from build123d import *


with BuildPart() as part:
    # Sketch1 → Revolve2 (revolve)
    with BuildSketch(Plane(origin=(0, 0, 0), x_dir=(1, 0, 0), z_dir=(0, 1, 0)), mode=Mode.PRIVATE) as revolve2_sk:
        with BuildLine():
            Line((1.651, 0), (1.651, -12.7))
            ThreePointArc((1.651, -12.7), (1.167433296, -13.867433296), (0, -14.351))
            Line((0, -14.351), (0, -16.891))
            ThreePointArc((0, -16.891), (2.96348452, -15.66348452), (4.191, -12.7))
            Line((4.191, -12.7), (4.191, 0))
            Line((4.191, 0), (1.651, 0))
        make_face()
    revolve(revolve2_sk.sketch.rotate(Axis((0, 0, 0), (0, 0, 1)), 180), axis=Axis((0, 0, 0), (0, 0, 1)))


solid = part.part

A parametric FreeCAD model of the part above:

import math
import FreeCAD as App
import Part
import Sketcher

V = App.Vector
Q = App.Units.Quantity

doc = App.newDocument("Part")
body = doc.addObject("PartDesign::Body", "Body")

# Sketch on XZ plane
sketch1 = body.newObject("Sketcher::SketchObject", "Sketch")
sketch1.AttachmentSupport = (doc.getObject("XZ_Plane"), [""])
sketch1.MapMode = "FlatFace"
sketch1.addGeometry(Part.LineSegment(V(1.651, 0, 0), V(1.651, 12.7, 0)), False)
sketch1.addGeometry(Part.ArcOfCircle(Part.Circle(V(0, 12.7, 0), V(0, 0, 1), 1.651), math.radians(0), math.radians(90)), False)
sketch1.addGeometry(Part.LineSegment(V(0, 14.351, 0), V(0, 16.891, 0)), False)
sketch1.addGeometry(Part.ArcOfCircle(Part.Circle(V(0, 12.7, 0), V(0, 0, 1), 4.191), math.radians(0), math.radians(90)), False)
sketch1.addGeometry(Part.LineSegment(V(4.191, 12.7, 0), V(4.191, 0, 0)), False)
sketch1.addGeometry(Part.LineSegment(V(4.191, 0, 0), V(1.651, 0, 0)), False)
sketch1.addConstraint(Sketcher.Constraint("Tangent", 0, 2, 1, 1))
sketch1.addConstraint(Sketcher.Constraint("Coincident", 1, 2, 2, 1))
sketch1.addConstraint(Sketcher.Constraint("Coincident", 2, 2, 3, 2))
sketch1.addConstraint(Sketcher.Constraint("Tangent", 3, 1, 4, 1))
sketch1.addConstraint(Sketcher.Constraint("Coincident", 4, 2, 5, 1))
sketch1.addConstraint(Sketcher.Constraint("Coincident", 5, 2, 0, 1))
sketch1.addConstraint(Sketcher.Constraint("Vertical", 0))
sketch1.addConstraint(Sketcher.Constraint("Vertical", 2))
sketch1.addConstraint(Sketcher.Constraint("Vertical", 4))
sketch1.addConstraint(Sketcher.Constraint("Horizontal", 5))
sketch1.addConstraint(Sketcher.Constraint("Coincident", 3, 3, 1, 3))
sketch1.addConstraint(Sketcher.Constraint("PointOnObject", 1, 3, -2))
sketch1.addConstraint(Sketcher.Constraint("PointOnObject", 1, 2, -2))
sketch1.addConstraint(Sketcher.Constraint("PointOnObject", 4, 2, -1))
sketch1.addConstraint(Sketcher.Constraint("DistanceX", 5, 2, 5, 1, Q("0.1 in")))
sketch1.addConstraint(Sketcher.Constraint("DistanceY", 0, 1, 0, 2, Q("0.5 in")))
sketch1.addConstraint(Sketcher.Constraint("Radius", 1, Q("0.065 in")))
revolution = body.newObject("PartDesign::Revolution", "Revolution")
revolution.Profile = sketch1
revolution.ReferenceAxis = (sketch1, ["V_Axis"])
revolution.Angle = 360

doc.recompute()
